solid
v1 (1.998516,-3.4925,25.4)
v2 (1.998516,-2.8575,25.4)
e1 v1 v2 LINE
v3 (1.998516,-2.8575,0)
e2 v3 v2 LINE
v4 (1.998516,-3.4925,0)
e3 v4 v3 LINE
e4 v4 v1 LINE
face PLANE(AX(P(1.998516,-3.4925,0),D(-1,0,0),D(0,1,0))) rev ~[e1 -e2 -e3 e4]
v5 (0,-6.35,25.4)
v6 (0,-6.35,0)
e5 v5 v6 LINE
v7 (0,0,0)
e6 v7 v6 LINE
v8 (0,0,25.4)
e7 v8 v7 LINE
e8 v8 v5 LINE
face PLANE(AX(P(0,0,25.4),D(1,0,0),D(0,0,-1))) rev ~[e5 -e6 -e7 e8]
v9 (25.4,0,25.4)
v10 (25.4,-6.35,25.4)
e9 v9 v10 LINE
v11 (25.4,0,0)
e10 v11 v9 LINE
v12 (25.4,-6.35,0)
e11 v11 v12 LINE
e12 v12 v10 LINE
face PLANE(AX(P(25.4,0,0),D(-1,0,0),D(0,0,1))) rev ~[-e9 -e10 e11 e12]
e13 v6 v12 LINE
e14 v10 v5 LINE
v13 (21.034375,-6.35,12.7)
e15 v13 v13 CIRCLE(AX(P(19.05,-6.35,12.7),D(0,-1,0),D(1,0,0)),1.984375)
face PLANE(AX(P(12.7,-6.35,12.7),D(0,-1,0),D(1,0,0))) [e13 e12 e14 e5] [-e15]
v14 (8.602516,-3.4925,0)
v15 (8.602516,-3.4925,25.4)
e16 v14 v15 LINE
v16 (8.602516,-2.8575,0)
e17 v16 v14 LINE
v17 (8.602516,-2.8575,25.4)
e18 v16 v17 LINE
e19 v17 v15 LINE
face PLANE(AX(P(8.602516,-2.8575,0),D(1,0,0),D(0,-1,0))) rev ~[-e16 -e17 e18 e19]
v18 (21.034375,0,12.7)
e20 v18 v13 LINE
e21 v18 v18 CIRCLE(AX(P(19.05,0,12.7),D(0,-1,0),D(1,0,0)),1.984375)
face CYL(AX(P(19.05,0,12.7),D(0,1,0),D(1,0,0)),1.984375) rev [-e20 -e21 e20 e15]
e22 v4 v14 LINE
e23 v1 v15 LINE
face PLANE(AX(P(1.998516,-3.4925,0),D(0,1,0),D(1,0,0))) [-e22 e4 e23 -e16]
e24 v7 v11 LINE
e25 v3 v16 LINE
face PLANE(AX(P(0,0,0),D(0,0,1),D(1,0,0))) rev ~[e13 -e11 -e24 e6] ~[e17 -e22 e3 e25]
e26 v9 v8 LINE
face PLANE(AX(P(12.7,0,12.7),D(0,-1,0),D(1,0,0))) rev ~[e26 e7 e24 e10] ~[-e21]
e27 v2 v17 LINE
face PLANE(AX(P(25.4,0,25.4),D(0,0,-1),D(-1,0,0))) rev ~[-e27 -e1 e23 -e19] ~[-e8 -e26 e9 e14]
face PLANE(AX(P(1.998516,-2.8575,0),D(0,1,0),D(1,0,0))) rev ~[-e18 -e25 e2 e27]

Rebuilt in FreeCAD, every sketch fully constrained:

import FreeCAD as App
import Part
import Sketcher
Q = App.Units.Quantity

doc = App.newDocument("Part")
body = doc.addObject("PartDesign::Body", "Body")

# Sketch on XZ plane
sketch1 = body.newObject("Sketcher::SketchObject", "Sketch")
sketch1.AttachmentSupport = (doc.getObject("XZ_Plane"), [""])
sketch1.MapMode = "FlatFace"
sketch1.addGeometry(Part.LineSegment(App.Vector(0, 0, 0), App.Vector(25.4, 0, 0)), False)
sketch1.addGeometry(Part.LineSegment(App.Vector(25.4, 0, 0), App.Vector(25.4, 25.4, 0)), False)
sketch1.addGeometry(Part.LineSegment(App.Vector(25.4, 25.4, 0), App.Vector(0, 25.4, 0)), False)
sketch1.addGeometry(Part.LineSegment(App.Vector(0, 25.4, 0), App.Vector(0, 0, 0)), False)
sketch1.addGeometry(Part.Circle(App.Vector(19.1, 12.7, 0), App.Vector(0, 0, 1), 2), False)
sketch1.addConstraint(Sketcher.Constraint("Coincident", 0, 2, 1, 1))
sketch1.addConstraint(Sketcher.Constraint("Coincident", 1, 2, 2, 1))
sketch1.addConstraint(Sketcher.Constraint("Coincident", 2, 2, 3, 1))
sketch1.addConstraint(Sketcher.Constraint("Coincident", 3, 2, 0, 1))
sketch1.addConstraint(Sketcher.Constraint("Horizontal", 0))
sketch1.addConstraint(Sketcher.Constraint("Vertical", 1))
sketch1.addConstraint(Sketcher.Constraint("Horizontal", 2))
sketch1.addConstraint(Sketcher.Constraint("Vertical", 3))
sketch1.addConstraint(Sketcher.Constraint("Coincident", 3, 2, -1, 1))
sketch1.addConstraint(Sketcher.Constraint("Equal", 2, 1))
sketch1.addConstraint(Sketcher.Constraint("DistanceX", 0, 1, 0, 2, Q("1 in")))
sketch1.addConstraint(Sketcher.Constraint("Diameter", 4, Q("0.15625 in")))
sketch1.addConstraint(Sketcher.Constraint("DistanceY", -1, 1, 4, 3, Q("0.5 in")))
sketch1.addConstraint(Sketcher.Constraint("DistanceX", -1, 1, 4, 3, Q("0.75 in")))
pad1 = body.newObject("PartDesign::Pad", "Pad")
pad1.Profile = sketch1
pad1.Length = Q("0.25 in")

# Sketch on XY plane
sketch2 = body.newObject("Sketcher::SketchObject", "Sketch001")
sketch2.AttachmentSupport = (doc.getObject("XY_Plane"), [""])
sketch2.MapMode = "FlatFace"
sketch2.addGeometry(Part.LineSegment(App.Vector(2, -3.5, 0), App.Vector(2, -2.9, 0)), False)
sketch2.addGeometry(Part.LineSegment(App.Vector(2, -2.9, 0), App.Vector(8.6, -2.9, 0)), False)
sketch2.addGeometry(Part.LineSegment(App.Vector(8.6, -2.9, 0), App.Vector(8.6, -3.5, 0)), False)
sketch2.addGeometry(Part.LineSegment(App.Vector(8.6, -3.5, 0), App.Vector(2, -3.5, 0)), False)
sketch2.addConstraint(Sketcher.Constraint("Coincident", 0, 2, 1, 1))
sketch2.addConstraint(Sketcher.Constraint("Coincident", 1, 2, 2, 1))
sketch2.addConstraint(Sketcher.Constraint("Coincident", 2, 2, 3, 1))
sketch2.addConstraint(Sketcher.Constraint("Coincident", 3, 2, 0, 1))
sketch2.addConstraint(Sketcher.Constraint("Vertical", 0))
sketch2.addConstraint(Sketcher.Constraint("Horizontal", 1))
sketch2.addConstraint(Sketcher.Constraint("Vertical", 2))
sketch2.addConstraint(Sketcher.Constraint("Horizontal", 3))
sketch2.addConstraint(Sketcher.Constraint("DistanceX", 1, 1, 1, 2, Q("0.26 in")))
sketch2.addConstraint(Sketcher.Constraint("DistanceY", 0, 1, 0, 2, Q("0.025 in")))
sketch2.addConstraint(Sketcher.Constraint("DistanceY", 0, 2, -1, 1, Q("0.1125 in")))
sketch2.addConstraint(Sketcher.Constraint("DistanceX", -1, 1, 0, 2, Q("1.998516 mm")))
pocket1 = body.newObject("PartDesign::Pocket", "Pocket")
pocket1.Profile = sketch2
pocket1.Length = Q("3 in")
pocket1.Reversed = True

doc.recompute()
